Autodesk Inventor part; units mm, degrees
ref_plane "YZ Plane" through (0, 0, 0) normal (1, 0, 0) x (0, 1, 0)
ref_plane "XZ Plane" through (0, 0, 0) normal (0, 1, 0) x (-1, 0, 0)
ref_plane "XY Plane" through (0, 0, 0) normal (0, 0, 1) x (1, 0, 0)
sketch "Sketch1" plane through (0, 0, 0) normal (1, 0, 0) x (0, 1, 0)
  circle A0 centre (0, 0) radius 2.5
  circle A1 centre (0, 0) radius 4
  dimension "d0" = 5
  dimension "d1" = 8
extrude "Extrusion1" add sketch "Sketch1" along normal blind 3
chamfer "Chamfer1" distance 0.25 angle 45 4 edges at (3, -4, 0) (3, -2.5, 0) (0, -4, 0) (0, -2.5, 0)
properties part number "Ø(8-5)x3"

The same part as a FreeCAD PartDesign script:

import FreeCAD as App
import Part
import Sketcher

V = App.Vector
Q = App.Units.Quantity


def edges_at(feature, points):
    """Names of the edges that pass closest to the given points."""
    edges = feature.Shape.Edges
    near = lambda p: min(range(len(edges)), key=lambda i: edges[i].distToShape(Part.Vertex(*p))[0])
    return sorted({f"Edge{near(p) + 1}" for p in points})

doc = App.newDocument("Part")
body = doc.addObject("PartDesign::Body", "Body")

# Sketch on YZ plane
sketch1 = body.newObject("Sketcher::SketchObject", "Sketch")
sketch1.AttachmentSupport = (doc.getObject("YZ_Plane"), [""])
sketch1.MapMode = "FlatFace"
sketch1.addGeometry([
    Part.Circle(V(0, 0, 0), V(0, 0, 1), 4),
    Part.Circle(V(0, 0, 0), V(0, 0, 1), 2.5),
], False)
sketch1.addConstraint([
    Sketcher.Constraint("Coincident", 0, 3, -1, 1),
    Sketcher.Constraint("Coincident", 1, 3, -1, 1),
    Sketcher.Constraint("Diameter", 0, Q("8 mm")),
    Sketcher.Constraint("Diameter", 1, Q("5 mm")),
])
pad1 = body.newObject("PartDesign::Pad", "Pad")
pad1.Profile = sketch1
pad1.Length = 3
doc.recompute()

chamfer = body.newObject("PartDesign::Chamfer", "Chamfer")
chamfer.Base = (pad1, edges_at(pad1, [
    (3, -4, 0),
    (3, -2.5, 0),
    (0, -4, 0),
    (0, -2.5, 0),
]))
chamfer.Size = 0.25

doc.recompute()
